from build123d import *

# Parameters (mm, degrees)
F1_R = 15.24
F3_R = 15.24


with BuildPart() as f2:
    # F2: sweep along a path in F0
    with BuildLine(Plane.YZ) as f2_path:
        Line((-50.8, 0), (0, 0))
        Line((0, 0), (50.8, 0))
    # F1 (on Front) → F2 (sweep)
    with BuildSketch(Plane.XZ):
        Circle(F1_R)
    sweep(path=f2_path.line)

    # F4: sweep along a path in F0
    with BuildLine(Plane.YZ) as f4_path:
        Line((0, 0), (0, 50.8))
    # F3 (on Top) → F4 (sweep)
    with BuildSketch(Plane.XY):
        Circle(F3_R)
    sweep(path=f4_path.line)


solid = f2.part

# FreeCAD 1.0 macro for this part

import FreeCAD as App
import Part
import Sketcher

V = App.Vector
Q = App.Units.Quantity

doc = App.newDocument("Part")
body = doc.addObject("PartDesign::Body", "Body")

sketch1 = body.newObject("Sketcher::SketchObject", "Sketch")
sketch1.AttachmentSupport = (doc.getObject("XZ_Plane"), [""])
sketch1.MapMode = "FlatFace"
sketch1.addGeometry(Part.Circle(V(0, 0, 0), V(0, 0, 1), 15.24), False)
sketch1.addConstraint([
    Sketcher.Constraint("Coincident", 0, 3, -1, 1),
    Sketcher.Constraint("Diameter", 0, Q("1.2 in")),
])

sketch2 = body.newObject("Sketcher::SketchObject", "Sketch001")
sketch2.AttachmentSupport = (doc.getObject("XY_Plane"), [""])
sketch2.MapMode = "FlatFace"
sketch2.addGeometry(Part.LineSegment(V(0, -50.8, 0), V(0, 50.8, 0)), False)
sketch2.addConstraint([
    Sketcher.Constraint("Vertical", 0),
    Sketcher.Constraint("Symmetric", 0, 1, 0, 2, -1, 1),
    Sketcher.Constraint("DistanceY", 0, 1, 0, 2, Q("4 in")),
])
doc.recompute()

additivepipe = body.newObject("PartDesign::AdditivePipe", "AdditivePipe")
additivepipe.Profile = sketch1
additivepipe.Spine = (sketch2, ["Edge1"])

sketch3 = body.newObject("Sketcher::SketchObject", "Sketch002")
sketch3.AttachmentSupport = (doc.getObject("XY_Plane"), [""])
sketch3.MapMode = "FlatFace"
sketch3.addGeometry(Part.Circle(V(0, 0, 0), V(0, 0, 1), 15.24), False)
sketch3.addConstraint([
    Sketcher.Constraint("Coincident", 0, 3, -1, 1),
    Sketcher.Constraint("Diameter", 0, Q("1.2 in")),
])

sketch4 = body.newObject("Sketcher::SketchObject", "Sketch003")
sketch4.AttachmentSupport = (doc.getObject("XZ_Plane"), [""])
sketch4.MapMode = "FlatFace"
sketch4.addGeometry(Part.LineSegment(V(0, 0, 0), V(0, 50.8, 0)), False)
sketch4.addConstraint([
    Sketcher.Constraint("Vertical", 0),
    Sketcher.Constraint("Coincident", 0, 1, -1, 1),
    Sketcher.Constraint("DistanceY", 0, 1, 0, 2, Q("2 in")),
])
doc.recompute()

additivepipe2 = body.newObject("PartDesign::AdditivePipe", "AdditivePipe001")
additivepipe2.Profile = sketch3
additivepipe2.Spine = (sketch4, ["Edge1"])

doc.recompute()
